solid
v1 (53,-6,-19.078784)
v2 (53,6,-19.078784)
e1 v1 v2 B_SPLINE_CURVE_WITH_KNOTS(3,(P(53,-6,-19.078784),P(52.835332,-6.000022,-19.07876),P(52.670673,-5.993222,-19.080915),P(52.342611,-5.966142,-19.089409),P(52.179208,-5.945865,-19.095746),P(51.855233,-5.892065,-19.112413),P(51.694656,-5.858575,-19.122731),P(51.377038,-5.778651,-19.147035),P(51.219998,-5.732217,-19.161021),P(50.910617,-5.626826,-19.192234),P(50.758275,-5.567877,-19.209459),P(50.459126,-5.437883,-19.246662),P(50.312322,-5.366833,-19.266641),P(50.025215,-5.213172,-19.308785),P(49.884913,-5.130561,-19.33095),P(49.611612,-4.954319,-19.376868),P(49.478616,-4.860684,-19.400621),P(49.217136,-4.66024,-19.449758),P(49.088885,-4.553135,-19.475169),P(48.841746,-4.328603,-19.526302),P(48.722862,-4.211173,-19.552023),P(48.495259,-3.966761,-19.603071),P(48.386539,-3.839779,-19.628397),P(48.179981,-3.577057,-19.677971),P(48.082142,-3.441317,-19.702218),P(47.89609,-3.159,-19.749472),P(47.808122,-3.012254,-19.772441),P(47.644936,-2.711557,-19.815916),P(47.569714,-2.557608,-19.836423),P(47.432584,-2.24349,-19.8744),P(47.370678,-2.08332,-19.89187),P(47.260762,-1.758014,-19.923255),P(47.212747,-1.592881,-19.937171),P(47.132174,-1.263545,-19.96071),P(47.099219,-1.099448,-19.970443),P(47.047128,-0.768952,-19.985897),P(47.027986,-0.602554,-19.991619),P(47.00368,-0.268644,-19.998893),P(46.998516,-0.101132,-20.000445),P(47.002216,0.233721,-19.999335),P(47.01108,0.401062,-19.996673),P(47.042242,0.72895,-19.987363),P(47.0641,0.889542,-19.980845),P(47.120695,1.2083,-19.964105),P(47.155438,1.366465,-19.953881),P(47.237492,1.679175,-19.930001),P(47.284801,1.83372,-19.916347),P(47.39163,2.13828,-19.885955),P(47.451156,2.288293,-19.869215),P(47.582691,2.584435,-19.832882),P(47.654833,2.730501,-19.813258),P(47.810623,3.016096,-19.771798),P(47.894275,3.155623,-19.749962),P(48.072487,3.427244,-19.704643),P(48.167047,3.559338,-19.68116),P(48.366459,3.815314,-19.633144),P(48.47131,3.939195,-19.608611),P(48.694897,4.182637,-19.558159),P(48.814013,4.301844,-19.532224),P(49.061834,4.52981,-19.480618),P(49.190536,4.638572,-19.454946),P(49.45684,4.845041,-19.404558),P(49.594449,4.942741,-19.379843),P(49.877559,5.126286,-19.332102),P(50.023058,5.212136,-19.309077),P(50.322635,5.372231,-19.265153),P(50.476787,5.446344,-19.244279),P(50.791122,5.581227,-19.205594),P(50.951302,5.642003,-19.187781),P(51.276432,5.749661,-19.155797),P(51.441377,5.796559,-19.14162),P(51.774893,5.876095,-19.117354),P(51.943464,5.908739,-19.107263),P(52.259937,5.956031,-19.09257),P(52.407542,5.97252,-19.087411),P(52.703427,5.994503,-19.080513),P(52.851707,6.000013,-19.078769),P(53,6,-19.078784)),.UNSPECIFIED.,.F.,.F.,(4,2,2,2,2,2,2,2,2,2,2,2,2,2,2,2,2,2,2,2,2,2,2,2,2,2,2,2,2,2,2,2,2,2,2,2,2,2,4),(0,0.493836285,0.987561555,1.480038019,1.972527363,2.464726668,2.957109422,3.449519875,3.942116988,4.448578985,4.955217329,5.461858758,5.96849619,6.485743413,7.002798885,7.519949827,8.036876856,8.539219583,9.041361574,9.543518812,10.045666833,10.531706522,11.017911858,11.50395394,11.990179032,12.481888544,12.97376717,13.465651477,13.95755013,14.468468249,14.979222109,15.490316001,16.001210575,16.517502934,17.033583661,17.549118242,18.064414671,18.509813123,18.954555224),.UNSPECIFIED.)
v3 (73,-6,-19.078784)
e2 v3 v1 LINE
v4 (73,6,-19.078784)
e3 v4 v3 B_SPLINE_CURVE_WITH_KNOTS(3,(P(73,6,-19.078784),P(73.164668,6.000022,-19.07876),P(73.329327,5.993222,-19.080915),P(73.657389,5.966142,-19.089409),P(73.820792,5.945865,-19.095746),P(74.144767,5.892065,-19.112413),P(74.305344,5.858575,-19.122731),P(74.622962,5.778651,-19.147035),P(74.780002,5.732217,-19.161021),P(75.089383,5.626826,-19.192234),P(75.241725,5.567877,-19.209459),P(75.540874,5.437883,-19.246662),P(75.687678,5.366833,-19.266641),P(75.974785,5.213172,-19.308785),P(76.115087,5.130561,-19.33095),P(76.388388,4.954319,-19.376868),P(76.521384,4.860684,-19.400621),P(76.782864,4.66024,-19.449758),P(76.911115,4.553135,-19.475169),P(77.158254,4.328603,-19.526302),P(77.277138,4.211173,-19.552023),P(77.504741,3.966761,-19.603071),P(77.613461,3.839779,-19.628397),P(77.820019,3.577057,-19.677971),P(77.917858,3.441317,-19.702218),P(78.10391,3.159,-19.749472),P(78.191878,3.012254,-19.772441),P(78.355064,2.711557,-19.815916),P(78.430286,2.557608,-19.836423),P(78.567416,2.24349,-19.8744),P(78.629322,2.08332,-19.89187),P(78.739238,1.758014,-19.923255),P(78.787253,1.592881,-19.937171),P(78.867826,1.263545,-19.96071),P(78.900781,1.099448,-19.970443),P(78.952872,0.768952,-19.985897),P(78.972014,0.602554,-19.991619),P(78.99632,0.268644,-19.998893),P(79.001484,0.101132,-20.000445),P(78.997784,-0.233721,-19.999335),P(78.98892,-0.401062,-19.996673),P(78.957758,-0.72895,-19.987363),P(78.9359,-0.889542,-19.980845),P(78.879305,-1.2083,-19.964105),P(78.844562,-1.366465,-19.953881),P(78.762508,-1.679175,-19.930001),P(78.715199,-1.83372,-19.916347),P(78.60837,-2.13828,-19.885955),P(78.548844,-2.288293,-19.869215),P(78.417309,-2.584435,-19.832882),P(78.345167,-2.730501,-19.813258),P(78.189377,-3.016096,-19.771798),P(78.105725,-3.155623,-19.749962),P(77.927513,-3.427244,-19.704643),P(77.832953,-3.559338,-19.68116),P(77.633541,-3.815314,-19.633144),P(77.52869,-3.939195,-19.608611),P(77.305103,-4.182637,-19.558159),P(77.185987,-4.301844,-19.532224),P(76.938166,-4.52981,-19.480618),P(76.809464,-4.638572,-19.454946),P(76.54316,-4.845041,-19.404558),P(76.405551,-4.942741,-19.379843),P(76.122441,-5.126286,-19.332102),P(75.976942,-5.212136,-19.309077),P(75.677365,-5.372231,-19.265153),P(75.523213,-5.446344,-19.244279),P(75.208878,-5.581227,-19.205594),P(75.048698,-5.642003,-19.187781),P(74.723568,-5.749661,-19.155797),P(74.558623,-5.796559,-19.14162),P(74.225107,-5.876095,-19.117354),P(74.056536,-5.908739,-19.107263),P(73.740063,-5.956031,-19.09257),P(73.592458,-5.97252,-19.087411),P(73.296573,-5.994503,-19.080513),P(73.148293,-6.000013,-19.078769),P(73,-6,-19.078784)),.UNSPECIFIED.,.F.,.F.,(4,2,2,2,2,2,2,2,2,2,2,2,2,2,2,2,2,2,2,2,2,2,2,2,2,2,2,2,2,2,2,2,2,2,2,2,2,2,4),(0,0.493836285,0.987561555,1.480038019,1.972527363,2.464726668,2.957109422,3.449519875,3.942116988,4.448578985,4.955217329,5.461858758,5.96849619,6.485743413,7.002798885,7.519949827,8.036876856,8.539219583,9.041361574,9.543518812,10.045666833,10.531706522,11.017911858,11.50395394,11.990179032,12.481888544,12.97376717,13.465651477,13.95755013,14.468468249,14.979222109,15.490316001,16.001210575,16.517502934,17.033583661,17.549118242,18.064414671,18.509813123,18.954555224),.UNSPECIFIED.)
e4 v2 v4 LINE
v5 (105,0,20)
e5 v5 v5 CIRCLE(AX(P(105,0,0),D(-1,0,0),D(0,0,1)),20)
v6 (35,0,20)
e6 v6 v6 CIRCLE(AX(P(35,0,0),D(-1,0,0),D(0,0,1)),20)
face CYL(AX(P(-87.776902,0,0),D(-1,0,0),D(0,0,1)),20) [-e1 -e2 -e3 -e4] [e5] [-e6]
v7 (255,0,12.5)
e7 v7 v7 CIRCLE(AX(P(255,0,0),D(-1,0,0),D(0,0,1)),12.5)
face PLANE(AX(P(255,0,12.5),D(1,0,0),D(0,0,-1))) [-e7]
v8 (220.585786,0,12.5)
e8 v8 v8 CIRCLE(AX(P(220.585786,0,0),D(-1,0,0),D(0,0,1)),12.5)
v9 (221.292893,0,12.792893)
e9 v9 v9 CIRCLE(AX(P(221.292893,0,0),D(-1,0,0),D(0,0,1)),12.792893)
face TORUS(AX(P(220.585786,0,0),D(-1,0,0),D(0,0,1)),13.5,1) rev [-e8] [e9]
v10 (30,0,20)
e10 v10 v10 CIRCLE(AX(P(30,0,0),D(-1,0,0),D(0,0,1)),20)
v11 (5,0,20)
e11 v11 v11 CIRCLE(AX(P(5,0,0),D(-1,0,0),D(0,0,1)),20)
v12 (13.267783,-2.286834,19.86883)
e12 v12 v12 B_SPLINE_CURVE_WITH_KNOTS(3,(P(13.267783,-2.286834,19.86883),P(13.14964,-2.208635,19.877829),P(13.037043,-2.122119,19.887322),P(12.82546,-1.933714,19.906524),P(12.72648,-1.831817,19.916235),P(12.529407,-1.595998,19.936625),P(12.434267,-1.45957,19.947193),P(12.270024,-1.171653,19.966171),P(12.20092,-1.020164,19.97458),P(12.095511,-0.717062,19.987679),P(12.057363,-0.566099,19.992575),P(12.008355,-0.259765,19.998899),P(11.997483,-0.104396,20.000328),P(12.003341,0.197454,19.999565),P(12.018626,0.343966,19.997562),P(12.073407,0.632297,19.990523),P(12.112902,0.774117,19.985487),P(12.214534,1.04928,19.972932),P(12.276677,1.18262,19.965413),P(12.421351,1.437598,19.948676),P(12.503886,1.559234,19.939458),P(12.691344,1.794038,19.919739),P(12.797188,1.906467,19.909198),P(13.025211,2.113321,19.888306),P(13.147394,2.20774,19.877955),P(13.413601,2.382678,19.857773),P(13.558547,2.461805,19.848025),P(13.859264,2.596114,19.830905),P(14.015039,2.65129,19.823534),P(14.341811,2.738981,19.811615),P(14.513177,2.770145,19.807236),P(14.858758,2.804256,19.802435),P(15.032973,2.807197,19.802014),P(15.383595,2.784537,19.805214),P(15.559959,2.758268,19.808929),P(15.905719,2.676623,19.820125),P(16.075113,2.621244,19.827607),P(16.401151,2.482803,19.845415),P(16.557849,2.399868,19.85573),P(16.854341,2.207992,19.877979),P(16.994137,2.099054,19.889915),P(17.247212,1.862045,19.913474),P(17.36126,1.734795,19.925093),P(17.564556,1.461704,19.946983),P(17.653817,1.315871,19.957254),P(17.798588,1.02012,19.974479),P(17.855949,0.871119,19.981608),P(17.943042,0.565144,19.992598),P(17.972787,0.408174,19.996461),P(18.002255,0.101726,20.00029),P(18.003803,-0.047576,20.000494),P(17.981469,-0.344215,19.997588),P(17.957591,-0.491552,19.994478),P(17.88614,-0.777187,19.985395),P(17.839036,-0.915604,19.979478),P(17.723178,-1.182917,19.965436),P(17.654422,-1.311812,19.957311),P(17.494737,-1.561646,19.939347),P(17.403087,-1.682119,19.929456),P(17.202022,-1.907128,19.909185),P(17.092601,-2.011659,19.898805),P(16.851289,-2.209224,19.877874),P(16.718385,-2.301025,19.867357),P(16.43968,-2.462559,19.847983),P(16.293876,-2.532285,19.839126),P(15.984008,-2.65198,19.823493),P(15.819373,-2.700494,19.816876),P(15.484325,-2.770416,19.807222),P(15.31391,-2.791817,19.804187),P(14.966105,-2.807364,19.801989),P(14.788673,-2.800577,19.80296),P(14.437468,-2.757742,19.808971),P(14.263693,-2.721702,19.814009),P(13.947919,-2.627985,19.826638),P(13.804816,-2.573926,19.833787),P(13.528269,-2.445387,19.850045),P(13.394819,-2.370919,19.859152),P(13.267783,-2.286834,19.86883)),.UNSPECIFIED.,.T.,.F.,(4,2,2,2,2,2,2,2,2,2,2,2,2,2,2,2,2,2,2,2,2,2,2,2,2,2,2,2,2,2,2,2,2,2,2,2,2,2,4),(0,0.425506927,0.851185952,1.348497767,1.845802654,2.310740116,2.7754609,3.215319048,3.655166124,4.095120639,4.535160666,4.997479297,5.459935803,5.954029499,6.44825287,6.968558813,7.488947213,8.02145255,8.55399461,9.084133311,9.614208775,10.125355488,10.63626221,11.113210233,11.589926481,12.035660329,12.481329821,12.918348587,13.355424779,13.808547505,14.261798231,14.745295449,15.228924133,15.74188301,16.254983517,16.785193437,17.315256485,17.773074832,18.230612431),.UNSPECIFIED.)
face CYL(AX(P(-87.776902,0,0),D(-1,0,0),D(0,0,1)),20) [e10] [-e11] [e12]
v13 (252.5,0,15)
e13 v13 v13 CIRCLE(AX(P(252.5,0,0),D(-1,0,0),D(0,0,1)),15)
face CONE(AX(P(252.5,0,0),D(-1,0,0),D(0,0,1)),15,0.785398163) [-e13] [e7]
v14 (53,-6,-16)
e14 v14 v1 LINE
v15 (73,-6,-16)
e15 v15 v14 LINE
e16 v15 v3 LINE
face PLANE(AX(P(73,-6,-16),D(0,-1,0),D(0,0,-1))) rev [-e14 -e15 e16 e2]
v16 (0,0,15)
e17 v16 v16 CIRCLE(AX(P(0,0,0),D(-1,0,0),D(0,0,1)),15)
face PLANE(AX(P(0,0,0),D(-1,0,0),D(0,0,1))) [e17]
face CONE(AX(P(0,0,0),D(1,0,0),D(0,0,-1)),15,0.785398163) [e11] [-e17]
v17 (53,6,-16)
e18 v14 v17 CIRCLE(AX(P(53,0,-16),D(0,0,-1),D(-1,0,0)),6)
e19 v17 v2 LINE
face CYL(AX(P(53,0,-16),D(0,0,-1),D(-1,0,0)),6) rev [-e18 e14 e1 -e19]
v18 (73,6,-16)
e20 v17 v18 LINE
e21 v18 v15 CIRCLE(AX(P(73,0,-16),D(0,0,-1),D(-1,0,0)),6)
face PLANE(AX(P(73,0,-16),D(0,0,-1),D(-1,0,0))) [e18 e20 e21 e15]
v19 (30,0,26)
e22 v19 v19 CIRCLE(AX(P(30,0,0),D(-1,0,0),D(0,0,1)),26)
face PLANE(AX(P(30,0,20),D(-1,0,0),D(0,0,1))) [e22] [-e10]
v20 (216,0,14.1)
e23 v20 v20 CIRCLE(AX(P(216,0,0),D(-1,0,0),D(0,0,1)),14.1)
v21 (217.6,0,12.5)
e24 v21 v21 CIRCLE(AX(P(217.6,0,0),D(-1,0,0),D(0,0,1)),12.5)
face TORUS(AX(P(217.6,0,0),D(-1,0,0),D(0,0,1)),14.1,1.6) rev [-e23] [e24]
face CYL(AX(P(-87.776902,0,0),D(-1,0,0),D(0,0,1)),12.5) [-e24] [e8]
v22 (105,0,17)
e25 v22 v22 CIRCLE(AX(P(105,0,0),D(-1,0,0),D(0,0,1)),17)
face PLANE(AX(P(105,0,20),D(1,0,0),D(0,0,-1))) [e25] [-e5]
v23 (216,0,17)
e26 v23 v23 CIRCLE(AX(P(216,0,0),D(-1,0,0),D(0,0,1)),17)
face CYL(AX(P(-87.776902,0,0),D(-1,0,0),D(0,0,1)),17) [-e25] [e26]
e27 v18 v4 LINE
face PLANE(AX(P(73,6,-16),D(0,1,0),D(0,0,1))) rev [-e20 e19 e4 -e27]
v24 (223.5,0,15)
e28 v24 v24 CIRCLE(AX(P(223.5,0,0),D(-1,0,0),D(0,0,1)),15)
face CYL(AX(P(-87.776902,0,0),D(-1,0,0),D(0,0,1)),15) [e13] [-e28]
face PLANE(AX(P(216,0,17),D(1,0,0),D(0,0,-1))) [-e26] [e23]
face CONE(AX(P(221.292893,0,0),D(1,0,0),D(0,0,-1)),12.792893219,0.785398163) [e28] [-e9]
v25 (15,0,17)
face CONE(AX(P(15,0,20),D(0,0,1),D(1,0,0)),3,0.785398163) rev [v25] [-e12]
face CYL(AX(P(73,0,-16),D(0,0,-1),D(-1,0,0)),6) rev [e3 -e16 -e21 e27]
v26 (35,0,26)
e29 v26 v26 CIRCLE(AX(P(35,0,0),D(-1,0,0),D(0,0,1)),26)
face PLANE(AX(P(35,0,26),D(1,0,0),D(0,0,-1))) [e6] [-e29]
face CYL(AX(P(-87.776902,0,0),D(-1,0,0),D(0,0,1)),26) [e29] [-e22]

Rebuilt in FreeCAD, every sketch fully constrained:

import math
import FreeCAD as App
import Part
import Sketcher
Q = App.Units.Quantity


def add_polygon(sketch, points):
    """Adds a closed chain of lines whose ends are joined by coincident constraints."""
    first, n = sketch.GeometryCount, len(points)
    for a, b in zip(points, points[1:] + points[:1]):
        sketch.addGeometry(Part.LineSegment(App.Vector(*a, 0), App.Vector(*b, 0)), False)
    for i in range(n):
        sketch.addConstraint(Sketcher.Constraint("Coincident", first + i, 2, first + (i + 1) % n, 1))

doc = App.newDocument("Part")
body = doc.addObject("PartDesign::Body", "Body")

# Sketch on XZ plane
sketch1 = body.newObject("Sketcher::SketchObject", "Sketch")
sketch1.AttachmentSupport = (doc.getObject("XZ_Plane"), [""])
sketch1.MapMode = "FlatFace"
sketch1.addGeometry([
    Part.LineSegment(App.Vector(0, 0, 0), App.Vector(0, 15, 0)),  # 0
    Part.LineSegment(App.Vector(0, 15, 0), App.Vector(5, 20, 0)),  # 1
    Part.LineSegment(App.Vector(5, 20, 0), App.Vector(30, 20, 0)),  # 2
    Part.LineSegment(App.Vector(30, 20, 0), App.Vector(30, 26, 0)),  # 3
    Part.LineSegment(App.Vector(30, 26, 0), App.Vector(35, 26, 0)),  # 4
    Part.LineSegment(App.Vector(35, 26, 0), App.Vector(35, 20, 0)),  # 5
    Part.LineSegment(App.Vector(35, 20, 0), App.Vector(105, 20, 0)),  # 6
    Part.LineSegment(App.Vector(105, 20, 0), App.Vector(105, 17, 0)),  # 7
    Part.LineSegment(App.Vector(105, 17, 0), App.Vector(216, 17, 0)),  # 8
    Part.LineSegment(App.Vector(216, 17, 0), App.Vector(216, 14.1, 0)),  # 9
    Part.ArcOfCircle(Part.Circle(App.Vector(217.6, 14.1, 0), App.Vector(0, 0, 1), 1.6), math.radians(180), math.radians(270)),  # 10
    Part.LineSegment(App.Vector(217.6, 12.5, 0), App.Vector(220.585786, 12.5, 0)),  # 11
    Part.ArcOfCircle(Part.Circle(App.Vector(220.585786, 13.5, 0), App.Vector(0, 0, 1), 1), math.radians(-90), math.radians(-45)),  # 12
    Part.LineSegment(App.Vector(221.292893, 12.792893, 0), App.Vector(223.5, 15, 0)),  # 13
    Part.LineSegment(App.Vector(223.5, 15, 0), App.Vector(252.5, 15, 0)),  # 14
    Part.LineSegment(App.Vector(252.5, 15, 0), App.Vector(255, 12.5, 0)),  # 15
    Part.LineSegment(App.Vector(255, 12.5, 0), App.Vector(255, 0, 0)),  # 16
    Part.LineSegment(App.Vector(255, 0, 0), App.Vector(0, 0, 0)),  # 17
], False)
sketch1.addConstraint([
    Sketcher.Constraint("Coincident", 0, 2, 1, 1),
    Sketcher.Constraint("Coincident", 1, 2, 2, 1),
    Sketcher.Constraint("Coincident", 2, 2, 3, 1),
    Sketcher.Constraint("Coincident", 3, 2, 4, 1),
    Sketcher.Constraint("Coincident", 4, 2, 5, 1),
    Sketcher.Constraint("Coincident", 5, 2, 6, 1),
    Sketcher.Constraint("Coincident", 6, 2, 7, 1),
    Sketcher.Constraint("Coincident", 7, 2, 8, 1),
    Sketcher.Constraint("Coincident", 8, 2, 9, 1),
    Sketcher.Constraint("Tangent", 9, 2, 10, 1),
    Sketcher.Constraint("Tangent", 10, 2, 11, 1),
    Sketcher.Constraint("Tangent", 11, 2, 12, 1),
    Sketcher.Constraint("Tangent", 12, 2, 13, 1),
    Sketcher.Constraint("Coincident", 13, 2, 14, 1),
    Sketcher.Constraint("Coincident", 14, 2, 15, 1),
    Sketcher.Constraint("Coincident", 15, 2, 16, 1),
    Sketcher.Constraint("Coincident", 16, 2, 17, 1),
    Sketcher.Constraint("Coincident", 17, 2, 0, 1),
    Sketcher.Constraint("Vertical", 0),
    Sketcher.Constraint("Horizontal", 2),
    Sketcher.Constraint("Vertical", 3),
    Sketcher.Constraint("Horizontal", 4),
    Sketcher.Constraint("Vertical", 5),
    Sketcher.Constraint("Horizontal", 6),
    Sketcher.Constraint("Vertical", 7),
    Sketcher.Constraint("Horizontal", 8),
    Sketcher.Constraint("Vertical", 9),
    Sketcher.Constraint("Horizontal", 11),
    Sketcher.Constraint("Horizontal", 14),
    Sketcher.Constraint("Vertical", 16),
    Sketcher.Constraint("Horizontal", 17),
    Sketcher.Constraint("Coincident", 17, 2, -1, 1),
    Sketcher.Constraint("Parallel", 1, 13),
    Sketcher.Constraint("Perpendicular", 13, 15),
    Sketcher.Constraint("Horizontal", 2, 2, 5, 2),
    Sketcher.Constraint("Horizontal", 0, 2, 13, 2),
    Sketcher.Constraint("Horizontal", 11, 2, 15, 2),
    Sketcher.Constraint("Radius", 12, 1.0),
    Sketcher.Constraint("Radius", 10, 1.6),
    Sketcher.Constraint("DistanceX", 2, 1, 2, 2, 25.0),
    Sketcher.Constraint("DistanceX", 4, 1, 4, 2, 5.0),
    Sketcher.Constraint("DistanceX", 6, 1, 6, 2, 70.0),
    Sketcher.Constraint("DistanceX", 8, 1, 8, 2, 111.0),
    Sketcher.Constraint("DistanceX", 14, 1, 14, 2, 29.0),
    Sketcher.Constraint("DistanceX", 17, 2, 17, 1, 255.0),
    Sketcher.Constraint("DistanceY", 0, 1, 0, 2, 15.0),
    Sketcher.Constraint("DistanceY", 3, 1, 3, 2, 6.0),
    Sketcher.Constraint("DistanceY", 7, 2, 7, 1, 3.0),
    Sketcher.Constraint("Angle", 1, Q("45 deg")),
    Sketcher.Constraint("DistanceY", 9, 2, 9, 1, 2.9),
    Sketcher.Constraint("DistanceY", 16, 2, 16, 1, 12.5),
])
revolution = body.newObject("PartDesign::Revolution", "Revolution")
revolution.Profile = sketch1
revolution.ReferenceAxis = (sketch1, ["H_Axis"])
revolution.Angle = 360

# Sketch on YZ plane
sketch2 = body.newObject("Sketcher::SketchObject", "Sketch001")
sketch2.AttachmentSupport = (doc.getObject("YZ_Plane"), [""])
sketch2.MapMode = "FlatFace"
sketch2.AttachmentOffset = App.Placement(App.Vector(0, 0, 15), App.Rotation())
add_polygon(sketch2, [(0, 20), (3, 20), (0, 17)])  # lines 0-2
sketch2.addConstraint([
    Sketcher.Constraint("Horizontal", 0),
    Sketcher.Constraint("Vertical", 2),
    Sketcher.Constraint("PointOnObject", 1, 2, -2),
    Sketcher.Constraint("Equal", 0, 2),
    Sketcher.Constraint("DistanceX", 0, 1, 0, 2, 3.0),
    Sketcher.Constraint("DistanceY", -1, 1, 0, 2, 20.0),
])
groove = body.newObject("PartDesign::Groove", "Groove")
groove.Profile = sketch2
groove.ReferenceAxis = (sketch2, ["V_Axis"])
groove.Angle = 360

# Sketch on XY plane
sketch3 = body.newObject("Sketcher::SketchObject", "Sketch002")
sketch3.AttachmentSupport = (doc.getObject("XY_Plane"), [""])
sketch3.MapMode = "FlatFace"
sketch3.AttachmentOffset = App.Placement(App.Vector(0, 0, -20), App.Rotation())
sketch3.addGeometry([
    Part.LineSegment(App.Vector(53, 6, 0), App.Vector(73, 6, 0)),
    Part.ArcOfCircle(Part.Circle(App.Vector(73, 0, 0), App.Vector(0, 0, 1), 6), math.radians(-90), math.radians(90)),
    Part.LineSegment(App.Vector(73, -6, 0), App.Vector(53, -6, 0)),
    Part.ArcOfCircle(Part.Circle(App.Vector(53, 0, 0), App.Vector(0, 0, 1), 6), math.radians(90), math.radians(270)),
], False)
sketch3.addConstraint([
    Sketcher.Constraint("Tangent", 0, 2, 1, 2),
    Sketcher.Constraint("Tangent", 1, 1, 2, 1),
    Sketcher.Constraint("Tangent", 2, 2, 3, 2),
    Sketcher.Constraint("Tangent", 3, 1, 0, 1),
    Sketcher.Constraint("Horizontal", 0),
    Sketcher.Constraint("Horizontal", 2),
    Sketcher.Constraint("PointOnObject", 1, 3, -1),
    Sketcher.Constraint("Radius", 1, 6.0),
    Sketcher.Constraint("DistanceX", 0, 1, 0, 2, 20.0),
    Sketcher.Constraint("DistanceX", -1, 1, 1, 3, 73.0),
])
pocket1 = body.newObject("PartDesign::Pocket", "Pocket")
pocket1.Profile = sketch3
pocket1.Length = 4
pocket1.Reversed = True

doc.recompute()
